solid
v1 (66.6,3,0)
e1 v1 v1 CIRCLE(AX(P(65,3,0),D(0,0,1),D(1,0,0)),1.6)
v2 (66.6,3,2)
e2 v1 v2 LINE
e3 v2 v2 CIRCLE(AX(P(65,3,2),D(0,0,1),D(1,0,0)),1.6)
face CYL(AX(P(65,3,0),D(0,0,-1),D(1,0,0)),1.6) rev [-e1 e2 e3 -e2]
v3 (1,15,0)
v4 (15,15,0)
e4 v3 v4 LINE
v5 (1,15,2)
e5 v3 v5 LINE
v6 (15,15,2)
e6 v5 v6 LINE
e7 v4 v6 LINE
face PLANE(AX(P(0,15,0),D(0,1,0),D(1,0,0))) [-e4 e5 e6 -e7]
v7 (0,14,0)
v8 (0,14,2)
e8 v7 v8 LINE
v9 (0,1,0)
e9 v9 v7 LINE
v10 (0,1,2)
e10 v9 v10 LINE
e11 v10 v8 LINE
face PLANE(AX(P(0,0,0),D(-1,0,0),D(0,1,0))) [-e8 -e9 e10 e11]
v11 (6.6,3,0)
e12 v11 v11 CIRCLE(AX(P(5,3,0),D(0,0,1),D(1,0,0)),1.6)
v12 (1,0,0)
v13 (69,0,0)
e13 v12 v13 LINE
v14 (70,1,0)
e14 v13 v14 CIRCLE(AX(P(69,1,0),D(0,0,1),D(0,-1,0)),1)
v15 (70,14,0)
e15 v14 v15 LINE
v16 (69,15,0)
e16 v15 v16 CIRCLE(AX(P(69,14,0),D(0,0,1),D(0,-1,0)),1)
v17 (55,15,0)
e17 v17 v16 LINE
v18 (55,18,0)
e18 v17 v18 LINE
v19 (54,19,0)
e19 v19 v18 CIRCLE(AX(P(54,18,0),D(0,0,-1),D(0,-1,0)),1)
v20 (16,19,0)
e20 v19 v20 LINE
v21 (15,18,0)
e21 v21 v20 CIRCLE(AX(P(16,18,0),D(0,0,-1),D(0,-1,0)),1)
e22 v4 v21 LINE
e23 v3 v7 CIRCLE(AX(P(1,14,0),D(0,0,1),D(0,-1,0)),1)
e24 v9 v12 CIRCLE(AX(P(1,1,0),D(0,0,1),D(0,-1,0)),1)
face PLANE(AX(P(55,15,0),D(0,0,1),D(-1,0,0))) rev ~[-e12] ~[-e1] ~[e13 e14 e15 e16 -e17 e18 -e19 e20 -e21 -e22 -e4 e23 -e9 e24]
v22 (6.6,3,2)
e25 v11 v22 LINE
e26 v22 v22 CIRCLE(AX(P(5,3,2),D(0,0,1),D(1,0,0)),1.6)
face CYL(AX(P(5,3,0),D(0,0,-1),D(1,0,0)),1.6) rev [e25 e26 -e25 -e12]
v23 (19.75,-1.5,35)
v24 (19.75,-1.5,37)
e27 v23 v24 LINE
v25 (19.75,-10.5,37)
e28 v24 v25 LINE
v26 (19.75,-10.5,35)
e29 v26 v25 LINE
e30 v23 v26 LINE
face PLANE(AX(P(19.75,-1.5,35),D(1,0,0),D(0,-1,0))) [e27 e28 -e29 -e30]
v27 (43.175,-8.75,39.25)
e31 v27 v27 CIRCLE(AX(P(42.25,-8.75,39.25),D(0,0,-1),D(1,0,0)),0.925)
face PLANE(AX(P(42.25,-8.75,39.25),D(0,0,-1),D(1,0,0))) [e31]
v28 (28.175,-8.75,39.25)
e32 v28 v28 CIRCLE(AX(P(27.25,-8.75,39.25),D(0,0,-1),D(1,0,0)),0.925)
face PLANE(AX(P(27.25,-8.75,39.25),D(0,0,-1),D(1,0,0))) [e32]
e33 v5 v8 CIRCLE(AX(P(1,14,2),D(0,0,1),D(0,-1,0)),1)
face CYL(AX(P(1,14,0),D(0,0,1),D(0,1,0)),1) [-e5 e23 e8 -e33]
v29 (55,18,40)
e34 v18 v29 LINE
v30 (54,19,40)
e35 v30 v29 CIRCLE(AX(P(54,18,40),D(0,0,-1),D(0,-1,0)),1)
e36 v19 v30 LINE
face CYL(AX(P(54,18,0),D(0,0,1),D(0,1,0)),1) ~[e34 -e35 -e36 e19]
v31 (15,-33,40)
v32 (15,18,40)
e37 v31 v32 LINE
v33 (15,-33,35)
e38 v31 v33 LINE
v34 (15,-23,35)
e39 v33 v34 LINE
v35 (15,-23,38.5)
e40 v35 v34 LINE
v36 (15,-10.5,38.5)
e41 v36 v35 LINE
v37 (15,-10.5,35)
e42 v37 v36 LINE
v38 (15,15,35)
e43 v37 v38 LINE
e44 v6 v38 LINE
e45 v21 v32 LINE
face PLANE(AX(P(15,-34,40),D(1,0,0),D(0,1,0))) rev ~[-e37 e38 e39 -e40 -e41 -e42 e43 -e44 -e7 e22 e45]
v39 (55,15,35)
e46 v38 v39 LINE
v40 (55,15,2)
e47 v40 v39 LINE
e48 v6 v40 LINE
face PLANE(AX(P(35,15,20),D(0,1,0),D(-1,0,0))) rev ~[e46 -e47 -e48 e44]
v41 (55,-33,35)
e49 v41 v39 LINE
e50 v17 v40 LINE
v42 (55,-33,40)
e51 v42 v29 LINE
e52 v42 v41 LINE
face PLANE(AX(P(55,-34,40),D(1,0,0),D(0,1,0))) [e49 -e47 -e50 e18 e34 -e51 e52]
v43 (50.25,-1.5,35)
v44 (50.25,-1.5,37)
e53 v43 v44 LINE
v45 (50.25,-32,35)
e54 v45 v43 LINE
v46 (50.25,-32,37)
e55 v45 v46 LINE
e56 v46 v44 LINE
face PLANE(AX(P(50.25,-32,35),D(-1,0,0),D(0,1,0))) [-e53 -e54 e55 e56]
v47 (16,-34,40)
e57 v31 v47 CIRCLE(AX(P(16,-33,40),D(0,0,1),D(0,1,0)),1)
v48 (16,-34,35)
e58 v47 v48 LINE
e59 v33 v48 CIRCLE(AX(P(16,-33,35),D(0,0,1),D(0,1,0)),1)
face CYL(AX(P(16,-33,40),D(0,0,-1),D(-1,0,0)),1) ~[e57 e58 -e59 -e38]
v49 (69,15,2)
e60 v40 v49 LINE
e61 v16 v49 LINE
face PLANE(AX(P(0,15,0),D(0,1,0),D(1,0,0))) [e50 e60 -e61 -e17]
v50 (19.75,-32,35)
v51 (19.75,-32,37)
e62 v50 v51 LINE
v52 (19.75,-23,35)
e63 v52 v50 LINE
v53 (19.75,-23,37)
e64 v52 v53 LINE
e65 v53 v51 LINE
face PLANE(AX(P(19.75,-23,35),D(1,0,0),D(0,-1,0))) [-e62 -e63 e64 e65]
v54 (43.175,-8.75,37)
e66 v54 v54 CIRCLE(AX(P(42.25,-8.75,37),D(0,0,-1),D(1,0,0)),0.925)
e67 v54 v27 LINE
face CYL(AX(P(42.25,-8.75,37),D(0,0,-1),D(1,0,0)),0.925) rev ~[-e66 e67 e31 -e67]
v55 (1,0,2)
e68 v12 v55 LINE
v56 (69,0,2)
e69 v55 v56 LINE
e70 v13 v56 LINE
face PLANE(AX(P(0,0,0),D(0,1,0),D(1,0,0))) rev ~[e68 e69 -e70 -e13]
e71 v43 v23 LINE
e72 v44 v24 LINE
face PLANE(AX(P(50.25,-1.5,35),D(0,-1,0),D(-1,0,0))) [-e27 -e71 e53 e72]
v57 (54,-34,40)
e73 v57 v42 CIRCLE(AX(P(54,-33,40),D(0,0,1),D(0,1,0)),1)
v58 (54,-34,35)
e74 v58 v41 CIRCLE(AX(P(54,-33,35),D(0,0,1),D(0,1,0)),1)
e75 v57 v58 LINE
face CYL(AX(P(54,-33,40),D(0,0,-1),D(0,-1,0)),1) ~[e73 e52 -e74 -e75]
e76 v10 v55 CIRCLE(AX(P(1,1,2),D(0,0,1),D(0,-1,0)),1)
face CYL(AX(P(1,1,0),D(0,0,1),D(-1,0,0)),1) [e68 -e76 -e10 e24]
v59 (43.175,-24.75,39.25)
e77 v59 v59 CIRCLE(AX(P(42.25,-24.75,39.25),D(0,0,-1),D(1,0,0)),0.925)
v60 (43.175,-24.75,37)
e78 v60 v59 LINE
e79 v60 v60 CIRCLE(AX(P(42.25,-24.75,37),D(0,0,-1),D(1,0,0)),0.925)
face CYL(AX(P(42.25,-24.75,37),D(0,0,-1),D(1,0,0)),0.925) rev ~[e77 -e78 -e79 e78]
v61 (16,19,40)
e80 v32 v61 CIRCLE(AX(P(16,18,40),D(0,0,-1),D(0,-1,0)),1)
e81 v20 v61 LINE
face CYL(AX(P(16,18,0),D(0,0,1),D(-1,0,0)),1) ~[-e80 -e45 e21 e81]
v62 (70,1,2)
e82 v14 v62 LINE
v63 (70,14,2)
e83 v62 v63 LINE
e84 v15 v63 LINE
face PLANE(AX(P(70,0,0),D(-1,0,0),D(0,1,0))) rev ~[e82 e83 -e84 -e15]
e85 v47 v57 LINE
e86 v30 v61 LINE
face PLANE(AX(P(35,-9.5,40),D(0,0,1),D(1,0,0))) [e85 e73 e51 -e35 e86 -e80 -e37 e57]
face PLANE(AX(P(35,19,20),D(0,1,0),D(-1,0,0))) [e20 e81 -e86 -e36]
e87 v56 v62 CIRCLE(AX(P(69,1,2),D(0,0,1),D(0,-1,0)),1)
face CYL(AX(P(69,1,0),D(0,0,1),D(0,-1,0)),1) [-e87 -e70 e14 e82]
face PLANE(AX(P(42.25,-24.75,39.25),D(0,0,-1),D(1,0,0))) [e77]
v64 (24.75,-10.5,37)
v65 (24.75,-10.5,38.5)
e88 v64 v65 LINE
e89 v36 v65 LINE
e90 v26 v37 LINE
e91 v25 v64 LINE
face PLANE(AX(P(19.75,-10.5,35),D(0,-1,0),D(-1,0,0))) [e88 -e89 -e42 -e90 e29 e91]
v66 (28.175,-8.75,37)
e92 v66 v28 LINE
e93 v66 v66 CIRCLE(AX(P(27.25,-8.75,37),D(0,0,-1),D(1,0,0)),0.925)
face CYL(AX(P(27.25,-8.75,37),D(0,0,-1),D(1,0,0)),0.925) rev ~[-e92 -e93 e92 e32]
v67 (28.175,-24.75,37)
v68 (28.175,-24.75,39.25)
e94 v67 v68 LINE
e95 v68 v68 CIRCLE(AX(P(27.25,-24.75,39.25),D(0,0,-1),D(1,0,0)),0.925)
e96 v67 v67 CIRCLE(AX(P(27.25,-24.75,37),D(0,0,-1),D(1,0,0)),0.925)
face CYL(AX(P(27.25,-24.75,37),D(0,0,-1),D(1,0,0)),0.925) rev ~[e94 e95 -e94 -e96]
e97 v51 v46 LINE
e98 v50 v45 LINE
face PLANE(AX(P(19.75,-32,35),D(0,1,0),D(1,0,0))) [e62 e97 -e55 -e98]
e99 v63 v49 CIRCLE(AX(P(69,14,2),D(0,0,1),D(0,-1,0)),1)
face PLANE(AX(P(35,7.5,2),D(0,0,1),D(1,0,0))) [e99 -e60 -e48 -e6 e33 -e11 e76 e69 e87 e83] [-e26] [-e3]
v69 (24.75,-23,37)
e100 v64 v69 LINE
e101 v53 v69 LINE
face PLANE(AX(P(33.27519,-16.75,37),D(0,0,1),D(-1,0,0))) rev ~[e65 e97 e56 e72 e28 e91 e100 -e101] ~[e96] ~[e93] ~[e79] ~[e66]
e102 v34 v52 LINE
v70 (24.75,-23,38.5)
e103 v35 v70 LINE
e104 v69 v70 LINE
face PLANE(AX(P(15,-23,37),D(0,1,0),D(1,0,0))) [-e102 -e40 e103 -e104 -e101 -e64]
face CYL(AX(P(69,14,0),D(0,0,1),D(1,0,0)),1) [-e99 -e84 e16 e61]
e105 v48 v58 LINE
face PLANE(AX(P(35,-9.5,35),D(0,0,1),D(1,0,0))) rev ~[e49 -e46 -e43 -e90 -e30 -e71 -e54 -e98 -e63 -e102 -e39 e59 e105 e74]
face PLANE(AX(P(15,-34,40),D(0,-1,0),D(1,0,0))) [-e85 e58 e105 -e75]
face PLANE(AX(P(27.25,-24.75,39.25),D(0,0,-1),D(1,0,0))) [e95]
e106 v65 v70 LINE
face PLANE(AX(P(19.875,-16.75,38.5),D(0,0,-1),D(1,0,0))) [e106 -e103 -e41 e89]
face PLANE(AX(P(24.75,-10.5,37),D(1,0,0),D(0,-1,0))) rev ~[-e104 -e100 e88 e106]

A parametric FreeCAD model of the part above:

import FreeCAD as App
import Part
import Sketcher

V = App.Vector


def edges_at(feature, points):
    """Names of the edges that pass closest to the given points."""
    edges = feature.Shape.Edges
    near = lambda p: min(range(len(edges)), key=lambda i: edges[i].distToShape(Part.Vertex(*p))[0])
    return sorted({f"Edge{near(p) + 1}" for p in points})


def add_polygon(sketch, points):
    """Adds a closed chain of lines whose ends are joined by coincident constraints."""
    first, n = sketch.GeometryCount, len(points)
    for a, b in zip(points, points[1:] + points[:1]):
        sketch.addGeometry(Part.LineSegment(App.Vector(*a, 0), App.Vector(*b, 0)), False)
    for i in range(n):
        sketch.addConstraint(Sketcher.Constraint("Coincident", first + i, 2, first + (i + 1) % n, 1))

doc = App.newDocument("Part")
body = doc.addObject("PartDesign::Body", "Body")

# Sketch on XY plane
sketch1 = body.newObject("Sketcher::SketchObject", "Sketch")
sketch1.AttachmentSupport = (doc.getObject("XY_Plane"), [""])
sketch1.MapMode = "FlatFace"
add_polygon(sketch1, [(0, 15), (0, 0), (70, 0), (70, 15)])  # lines 0-3
sketch1.addGeometry(Part.Circle(V(5, 3, 0), V(0, 0, 1), 1.6), False)  # 4
sketch1.addGeometry(Part.Circle(V(65, 3, 0), V(0, 0, 1), 1.6), False)  # 5
sketch1.addConstraint(Sketcher.Constraint("Vertical", 0))
sketch1.addConstraint(Sketcher.Constraint("Horizontal", 1))
sketch1.addConstraint(Sketcher.Constraint("Vertical", 2))
sketch1.addConstraint(Sketcher.Constraint("Horizontal", 3))
sketch1.addConstraint(Sketcher.Constraint("Coincident", 0, 2, -1, 1))
sketch1.addConstraint(Sketcher.Constraint("Equal", 4, 5))
sketch1.addConstraint(Sketcher.Constraint("Horizontal", 4, 3, 5, 3))
sketch1.addConstraint(Sketcher.Constraint("Diameter", 4, 3.2))
sketch1.addConstraint(Sketcher.Constraint("DistanceX", 1, 1, 1, 2, 70.0))
sketch1.addConstraint(Sketcher.Constraint("DistanceY", 0, 2, 0, 1, 15.0))
sketch1.addConstraint(Sketcher.Constraint("DistanceX", -1, 1, 4, 3, 5.0))
sketch1.addConstraint(Sketcher.Constraint("DistanceY", -1, 1, 4, 3, 3.0))
sketch1.addConstraint(Sketcher.Constraint("DistanceX", -1, 1, 5, 3, 65.0))
pad1 = body.newObject("PartDesign::Pad", "Pad")
pad1.Profile = sketch1
pad1.Length = 2

# Sketch on XZ plane
sketch2 = body.newObject("Sketcher::SketchObject", "Sketch001")
sketch2.AttachmentSupport = (doc.getObject("XZ_Plane"), [""])
sketch2.MapMode = "FlatFace"
sketch2.AttachmentOffset = App.Placement(V(0, 0, -15), App.Rotation())
add_polygon(sketch2, [(55, 40), (55, 0), (15, 0), (15, 40)])  # lines 0-3
sketch2.addConstraint(Sketcher.Constraint("Vertical", 0))
sketch2.addConstraint(Sketcher.Constraint("Horizontal", 1))
sketch2.addConstraint(Sketcher.Constraint("Vertical", 2))
sketch2.addConstraint(Sketcher.Constraint("Horizontal", 3))
sketch2.addConstraint(Sketcher.Constraint("PointOnObject", 0, 2, -1))
sketch2.addConstraint(Sketcher.Constraint("Equal", 3, 0))
sketch2.addConstraint(Sketcher.Constraint("DistanceX", 1, 2, 1, 1, 40.0))
sketch2.addConstraint(Sketcher.Constraint("DistanceX", -1, 1, 0, 2, 55.0))
pad2 = body.newObject("PartDesign::Pad", "Pad001")
pad2.Profile = sketch2
pad2.Length = 4
pad2.Reversed = True

# Sketch on XY plane
sketch3 = body.newObject("Sketcher::SketchObject", "Sketch002")
sketch3.AttachmentSupport = (doc.getObject("XY_Plane"), [""])
sketch3.MapMode = "FlatFace"
sketch3.AttachmentOffset = App.Placement(V(0, 0, 40), App.Rotation())
add_polygon(sketch3, [(15, 15), (15, -34), (55, -34), (55, 15)])  # lines 0-3
sketch3.addConstraint(Sketcher.Constraint("Vertical", 0))
sketch3.addConstraint(Sketcher.Constraint("Horizontal", 1))
sketch3.addConstraint(Sketcher.Constraint("Vertical", 2))
sketch3.addConstraint(Sketcher.Constraint("Horizontal", 3))
sketch3.addConstraint(Sketcher.Constraint("DistanceX", 1, 1, 1, 2, 40.0))
sketch3.addConstraint(Sketcher.Constraint("DistanceY", 0, 2, 0, 1, 49.0))
sketch3.addConstraint(Sketcher.Constraint("DistanceX", -1, 1, 0, 2, 15.0))
sketch3.addConstraint(Sketcher.Constraint("DistanceY", 0, 2, -1, 1, 34.0))
pad3 = body.newObject("PartDesign::Pad", "Pad002")
pad3.Profile = sketch3
pad3.Length = 5
pad3.Reversed = True

# Sketch on XY plane
sketch4 = body.newObject("Sketcher::SketchObject", "Sketch003")
sketch4.AttachmentSupport = (doc.getObject("XY_Plane"), [""])
sketch4.MapMode = "FlatFace"
sketch4.AttachmentOffset = App.Placement(V(0, 0, 35), App.Rotation())
add_polygon(sketch4, [(50.2, -32), (19.8, -32), (19.8, -23), (15, -23), (15, -10.5), (19.8, -10.5), (19.8, -1.5), (50.2, -1.5)])  # lines 0-7
sketch4.addConstraint(Sketcher.Constraint("Horizontal", 0))
sketch4.addConstraint(Sketcher.Constraint("Vertical", 1))
sketch4.addConstraint(Sketcher.Constraint("Horizontal", 2))
sketch4.addConstraint(Sketcher.Constraint("Vertical", 3))
sketch4.addConstraint(Sketcher.Constraint("Horizontal", 4))
sketch4.addConstraint(Sketcher.Constraint("Vertical", 5))
sketch4.addConstraint(Sketcher.Constraint("Horizontal", 6))
sketch4.addConstraint(Sketcher.Constraint("Vertical", 7))
sketch4.addConstraint(Sketcher.Constraint("Vertical", 1, 2, 4, 2))
sketch4.addConstraint(Sketcher.Constraint("Equal", 1, 5))
sketch4.addConstraint(Sketcher.Constraint("Equal", 6, 7))
sketch4.addConstraint(Sketcher.Constraint("DistanceY", 1, 1, 1, 2, 9.0))
sketch4.addConstraint(Sketcher.Constraint("DistanceX", 0, 2, 0, 1, 30.5))
sketch4.addConstraint(Sketcher.Constraint("DistanceY", 0, 2, -1, 1, 32.0))
sketch4.addConstraint(Sketcher.Constraint("DistanceX", -1, 1, 2, 2, 15.0))
sketch4.addConstraint(Sketcher.Constraint("DistanceX", 2, 2, 2, 1, 4.75))
pocket1 = body.newObject("PartDesign::Pocket", "Pocket")
pocket1.Profile = sketch4
pocket1.Length = 2
pocket1.Reversed = True

# Sketch on XY plane
sketch5 = body.newObject("Sketcher::SketchObject", "Sketch004")
sketch5.AttachmentSupport = (doc.getObject("XY_Plane"), [""])
sketch5.MapMode = "FlatFace"
sketch5.AttachmentOffset = App.Placement(V(0, 0, 37), App.Rotation())
add_polygon(sketch5, [(15, -23), (15, -10), (25, -10), (25, -23)])  # lines 0-3
sketch5.addConstraint(Sketcher.Constraint("Vertical", 0))
sketch5.addConstraint(Sketcher.Constraint("Horizontal", 1))
sketch5.addConstraint(Sketcher.Constraint("Vertical", 2))
sketch5.addConstraint(Sketcher.Constraint("Horizontal", 3))
sketch5.addConstraint(Sketcher.Constraint("DistanceY", 0, 1, 0, 2, 12.5))
sketch5.addConstraint(Sketcher.Constraint("DistanceX", -1, 1, 0, 2, 15.0))
sketch5.addConstraint(Sketcher.Constraint("DistanceY", 2, 2, -1, 1, 23.0))
sketch5.addConstraint(Sketcher.Constraint("DistanceX", 1, 1, 1, 2, 9.75))
pocket2 = body.newObject("PartDesign::Pocket", "Pocket001")
pocket2.Profile = sketch5
pocket2.Length = 1.5
pocket2.Reversed = True

# Sketch on XY plane
sketch6 = body.newObject("Sketcher::SketchObject", "Sketch005")
sketch6.AttachmentSupport = (doc.getObject("XY_Plane"), [""])
sketch6.MapMode = "FlatFace"
sketch6.AttachmentOffset = App.Placement(V(0, 0, 37), App.Rotation())
sketch6.addGeometry(Part.Circle(V(27.2, -24.8, 0), V(0, 0, 1), 0.9), False)
sketch6.addGeometry(Part.Circle(V(42.2, -24.8, 0), V(0, 0, 1), 0.9), False)
sketch6.addGeometry(Part.Circle(V(27.2, -8.8, 0), V(0, 0, 1), 0.9), False)
sketch6.addGeometry(Part.Circle(V(42.2, -8.8, 0), V(0, 0, 1), 0.9), False)
sketch6.addConstraint(Sketcher.Constraint("Equal", 0, 1))
sketch6.addConstraint(Sketcher.Constraint("Equal", 1, 2))
sketch6.addConstraint(Sketcher.Constraint("Equal", 2, 3))
sketch6.addConstraint(Sketcher.Constraint("Horizontal", 0, 3, 1, 3))
sketch6.addConstraint(Sketcher.Constraint("Horizontal", 2, 3, 3, 3))
sketch6.addConstraint(Sketcher.Constraint("Vertical", 0, 3, 2, 3))
sketch6.addConstraint(Sketcher.Constraint("Vertical", 1, 3, 3, 3))
sketch6.addConstraint(Sketcher.Constraint("Diameter", 0, 1.85))
sketch6.addConstraint(Sketcher.Constraint("DistanceX", 0, 3, 1, 3, 15.0))
sketch6.addConstraint(Sketcher.Constraint("DistanceY", 0, 3, 2, 3, 16.0))
sketch6.addConstraint(Sketcher.Constraint("DistanceX", -1, 1, 0, 3, 27.25))
sketch6.addConstraint(Sketcher.Constraint("DistanceY", 0, 3, -1, 1, 24.75))
pocket3 = body.newObject("PartDesign::Pocket", "Pocket002")
pocket3.Profile = sketch6
pocket3.Length = 2.25
pocket3.Reversed = True
doc.recompute()

fillet = body.newObject("PartDesign::Fillet", "Fillet")
fillet.Base = (pocket3, edges_at(pocket3, [
    (70, 0, 1),
    (70, 15, 1),
    (0, 0, 1),
    (0, 15, 1),
    (15, -34, 37.5),
    (55, -34, 37.5),
    (15, 19, 20),
    (55, 19, 20),
]))
fillet.Radius = 1

doc.recompute()
